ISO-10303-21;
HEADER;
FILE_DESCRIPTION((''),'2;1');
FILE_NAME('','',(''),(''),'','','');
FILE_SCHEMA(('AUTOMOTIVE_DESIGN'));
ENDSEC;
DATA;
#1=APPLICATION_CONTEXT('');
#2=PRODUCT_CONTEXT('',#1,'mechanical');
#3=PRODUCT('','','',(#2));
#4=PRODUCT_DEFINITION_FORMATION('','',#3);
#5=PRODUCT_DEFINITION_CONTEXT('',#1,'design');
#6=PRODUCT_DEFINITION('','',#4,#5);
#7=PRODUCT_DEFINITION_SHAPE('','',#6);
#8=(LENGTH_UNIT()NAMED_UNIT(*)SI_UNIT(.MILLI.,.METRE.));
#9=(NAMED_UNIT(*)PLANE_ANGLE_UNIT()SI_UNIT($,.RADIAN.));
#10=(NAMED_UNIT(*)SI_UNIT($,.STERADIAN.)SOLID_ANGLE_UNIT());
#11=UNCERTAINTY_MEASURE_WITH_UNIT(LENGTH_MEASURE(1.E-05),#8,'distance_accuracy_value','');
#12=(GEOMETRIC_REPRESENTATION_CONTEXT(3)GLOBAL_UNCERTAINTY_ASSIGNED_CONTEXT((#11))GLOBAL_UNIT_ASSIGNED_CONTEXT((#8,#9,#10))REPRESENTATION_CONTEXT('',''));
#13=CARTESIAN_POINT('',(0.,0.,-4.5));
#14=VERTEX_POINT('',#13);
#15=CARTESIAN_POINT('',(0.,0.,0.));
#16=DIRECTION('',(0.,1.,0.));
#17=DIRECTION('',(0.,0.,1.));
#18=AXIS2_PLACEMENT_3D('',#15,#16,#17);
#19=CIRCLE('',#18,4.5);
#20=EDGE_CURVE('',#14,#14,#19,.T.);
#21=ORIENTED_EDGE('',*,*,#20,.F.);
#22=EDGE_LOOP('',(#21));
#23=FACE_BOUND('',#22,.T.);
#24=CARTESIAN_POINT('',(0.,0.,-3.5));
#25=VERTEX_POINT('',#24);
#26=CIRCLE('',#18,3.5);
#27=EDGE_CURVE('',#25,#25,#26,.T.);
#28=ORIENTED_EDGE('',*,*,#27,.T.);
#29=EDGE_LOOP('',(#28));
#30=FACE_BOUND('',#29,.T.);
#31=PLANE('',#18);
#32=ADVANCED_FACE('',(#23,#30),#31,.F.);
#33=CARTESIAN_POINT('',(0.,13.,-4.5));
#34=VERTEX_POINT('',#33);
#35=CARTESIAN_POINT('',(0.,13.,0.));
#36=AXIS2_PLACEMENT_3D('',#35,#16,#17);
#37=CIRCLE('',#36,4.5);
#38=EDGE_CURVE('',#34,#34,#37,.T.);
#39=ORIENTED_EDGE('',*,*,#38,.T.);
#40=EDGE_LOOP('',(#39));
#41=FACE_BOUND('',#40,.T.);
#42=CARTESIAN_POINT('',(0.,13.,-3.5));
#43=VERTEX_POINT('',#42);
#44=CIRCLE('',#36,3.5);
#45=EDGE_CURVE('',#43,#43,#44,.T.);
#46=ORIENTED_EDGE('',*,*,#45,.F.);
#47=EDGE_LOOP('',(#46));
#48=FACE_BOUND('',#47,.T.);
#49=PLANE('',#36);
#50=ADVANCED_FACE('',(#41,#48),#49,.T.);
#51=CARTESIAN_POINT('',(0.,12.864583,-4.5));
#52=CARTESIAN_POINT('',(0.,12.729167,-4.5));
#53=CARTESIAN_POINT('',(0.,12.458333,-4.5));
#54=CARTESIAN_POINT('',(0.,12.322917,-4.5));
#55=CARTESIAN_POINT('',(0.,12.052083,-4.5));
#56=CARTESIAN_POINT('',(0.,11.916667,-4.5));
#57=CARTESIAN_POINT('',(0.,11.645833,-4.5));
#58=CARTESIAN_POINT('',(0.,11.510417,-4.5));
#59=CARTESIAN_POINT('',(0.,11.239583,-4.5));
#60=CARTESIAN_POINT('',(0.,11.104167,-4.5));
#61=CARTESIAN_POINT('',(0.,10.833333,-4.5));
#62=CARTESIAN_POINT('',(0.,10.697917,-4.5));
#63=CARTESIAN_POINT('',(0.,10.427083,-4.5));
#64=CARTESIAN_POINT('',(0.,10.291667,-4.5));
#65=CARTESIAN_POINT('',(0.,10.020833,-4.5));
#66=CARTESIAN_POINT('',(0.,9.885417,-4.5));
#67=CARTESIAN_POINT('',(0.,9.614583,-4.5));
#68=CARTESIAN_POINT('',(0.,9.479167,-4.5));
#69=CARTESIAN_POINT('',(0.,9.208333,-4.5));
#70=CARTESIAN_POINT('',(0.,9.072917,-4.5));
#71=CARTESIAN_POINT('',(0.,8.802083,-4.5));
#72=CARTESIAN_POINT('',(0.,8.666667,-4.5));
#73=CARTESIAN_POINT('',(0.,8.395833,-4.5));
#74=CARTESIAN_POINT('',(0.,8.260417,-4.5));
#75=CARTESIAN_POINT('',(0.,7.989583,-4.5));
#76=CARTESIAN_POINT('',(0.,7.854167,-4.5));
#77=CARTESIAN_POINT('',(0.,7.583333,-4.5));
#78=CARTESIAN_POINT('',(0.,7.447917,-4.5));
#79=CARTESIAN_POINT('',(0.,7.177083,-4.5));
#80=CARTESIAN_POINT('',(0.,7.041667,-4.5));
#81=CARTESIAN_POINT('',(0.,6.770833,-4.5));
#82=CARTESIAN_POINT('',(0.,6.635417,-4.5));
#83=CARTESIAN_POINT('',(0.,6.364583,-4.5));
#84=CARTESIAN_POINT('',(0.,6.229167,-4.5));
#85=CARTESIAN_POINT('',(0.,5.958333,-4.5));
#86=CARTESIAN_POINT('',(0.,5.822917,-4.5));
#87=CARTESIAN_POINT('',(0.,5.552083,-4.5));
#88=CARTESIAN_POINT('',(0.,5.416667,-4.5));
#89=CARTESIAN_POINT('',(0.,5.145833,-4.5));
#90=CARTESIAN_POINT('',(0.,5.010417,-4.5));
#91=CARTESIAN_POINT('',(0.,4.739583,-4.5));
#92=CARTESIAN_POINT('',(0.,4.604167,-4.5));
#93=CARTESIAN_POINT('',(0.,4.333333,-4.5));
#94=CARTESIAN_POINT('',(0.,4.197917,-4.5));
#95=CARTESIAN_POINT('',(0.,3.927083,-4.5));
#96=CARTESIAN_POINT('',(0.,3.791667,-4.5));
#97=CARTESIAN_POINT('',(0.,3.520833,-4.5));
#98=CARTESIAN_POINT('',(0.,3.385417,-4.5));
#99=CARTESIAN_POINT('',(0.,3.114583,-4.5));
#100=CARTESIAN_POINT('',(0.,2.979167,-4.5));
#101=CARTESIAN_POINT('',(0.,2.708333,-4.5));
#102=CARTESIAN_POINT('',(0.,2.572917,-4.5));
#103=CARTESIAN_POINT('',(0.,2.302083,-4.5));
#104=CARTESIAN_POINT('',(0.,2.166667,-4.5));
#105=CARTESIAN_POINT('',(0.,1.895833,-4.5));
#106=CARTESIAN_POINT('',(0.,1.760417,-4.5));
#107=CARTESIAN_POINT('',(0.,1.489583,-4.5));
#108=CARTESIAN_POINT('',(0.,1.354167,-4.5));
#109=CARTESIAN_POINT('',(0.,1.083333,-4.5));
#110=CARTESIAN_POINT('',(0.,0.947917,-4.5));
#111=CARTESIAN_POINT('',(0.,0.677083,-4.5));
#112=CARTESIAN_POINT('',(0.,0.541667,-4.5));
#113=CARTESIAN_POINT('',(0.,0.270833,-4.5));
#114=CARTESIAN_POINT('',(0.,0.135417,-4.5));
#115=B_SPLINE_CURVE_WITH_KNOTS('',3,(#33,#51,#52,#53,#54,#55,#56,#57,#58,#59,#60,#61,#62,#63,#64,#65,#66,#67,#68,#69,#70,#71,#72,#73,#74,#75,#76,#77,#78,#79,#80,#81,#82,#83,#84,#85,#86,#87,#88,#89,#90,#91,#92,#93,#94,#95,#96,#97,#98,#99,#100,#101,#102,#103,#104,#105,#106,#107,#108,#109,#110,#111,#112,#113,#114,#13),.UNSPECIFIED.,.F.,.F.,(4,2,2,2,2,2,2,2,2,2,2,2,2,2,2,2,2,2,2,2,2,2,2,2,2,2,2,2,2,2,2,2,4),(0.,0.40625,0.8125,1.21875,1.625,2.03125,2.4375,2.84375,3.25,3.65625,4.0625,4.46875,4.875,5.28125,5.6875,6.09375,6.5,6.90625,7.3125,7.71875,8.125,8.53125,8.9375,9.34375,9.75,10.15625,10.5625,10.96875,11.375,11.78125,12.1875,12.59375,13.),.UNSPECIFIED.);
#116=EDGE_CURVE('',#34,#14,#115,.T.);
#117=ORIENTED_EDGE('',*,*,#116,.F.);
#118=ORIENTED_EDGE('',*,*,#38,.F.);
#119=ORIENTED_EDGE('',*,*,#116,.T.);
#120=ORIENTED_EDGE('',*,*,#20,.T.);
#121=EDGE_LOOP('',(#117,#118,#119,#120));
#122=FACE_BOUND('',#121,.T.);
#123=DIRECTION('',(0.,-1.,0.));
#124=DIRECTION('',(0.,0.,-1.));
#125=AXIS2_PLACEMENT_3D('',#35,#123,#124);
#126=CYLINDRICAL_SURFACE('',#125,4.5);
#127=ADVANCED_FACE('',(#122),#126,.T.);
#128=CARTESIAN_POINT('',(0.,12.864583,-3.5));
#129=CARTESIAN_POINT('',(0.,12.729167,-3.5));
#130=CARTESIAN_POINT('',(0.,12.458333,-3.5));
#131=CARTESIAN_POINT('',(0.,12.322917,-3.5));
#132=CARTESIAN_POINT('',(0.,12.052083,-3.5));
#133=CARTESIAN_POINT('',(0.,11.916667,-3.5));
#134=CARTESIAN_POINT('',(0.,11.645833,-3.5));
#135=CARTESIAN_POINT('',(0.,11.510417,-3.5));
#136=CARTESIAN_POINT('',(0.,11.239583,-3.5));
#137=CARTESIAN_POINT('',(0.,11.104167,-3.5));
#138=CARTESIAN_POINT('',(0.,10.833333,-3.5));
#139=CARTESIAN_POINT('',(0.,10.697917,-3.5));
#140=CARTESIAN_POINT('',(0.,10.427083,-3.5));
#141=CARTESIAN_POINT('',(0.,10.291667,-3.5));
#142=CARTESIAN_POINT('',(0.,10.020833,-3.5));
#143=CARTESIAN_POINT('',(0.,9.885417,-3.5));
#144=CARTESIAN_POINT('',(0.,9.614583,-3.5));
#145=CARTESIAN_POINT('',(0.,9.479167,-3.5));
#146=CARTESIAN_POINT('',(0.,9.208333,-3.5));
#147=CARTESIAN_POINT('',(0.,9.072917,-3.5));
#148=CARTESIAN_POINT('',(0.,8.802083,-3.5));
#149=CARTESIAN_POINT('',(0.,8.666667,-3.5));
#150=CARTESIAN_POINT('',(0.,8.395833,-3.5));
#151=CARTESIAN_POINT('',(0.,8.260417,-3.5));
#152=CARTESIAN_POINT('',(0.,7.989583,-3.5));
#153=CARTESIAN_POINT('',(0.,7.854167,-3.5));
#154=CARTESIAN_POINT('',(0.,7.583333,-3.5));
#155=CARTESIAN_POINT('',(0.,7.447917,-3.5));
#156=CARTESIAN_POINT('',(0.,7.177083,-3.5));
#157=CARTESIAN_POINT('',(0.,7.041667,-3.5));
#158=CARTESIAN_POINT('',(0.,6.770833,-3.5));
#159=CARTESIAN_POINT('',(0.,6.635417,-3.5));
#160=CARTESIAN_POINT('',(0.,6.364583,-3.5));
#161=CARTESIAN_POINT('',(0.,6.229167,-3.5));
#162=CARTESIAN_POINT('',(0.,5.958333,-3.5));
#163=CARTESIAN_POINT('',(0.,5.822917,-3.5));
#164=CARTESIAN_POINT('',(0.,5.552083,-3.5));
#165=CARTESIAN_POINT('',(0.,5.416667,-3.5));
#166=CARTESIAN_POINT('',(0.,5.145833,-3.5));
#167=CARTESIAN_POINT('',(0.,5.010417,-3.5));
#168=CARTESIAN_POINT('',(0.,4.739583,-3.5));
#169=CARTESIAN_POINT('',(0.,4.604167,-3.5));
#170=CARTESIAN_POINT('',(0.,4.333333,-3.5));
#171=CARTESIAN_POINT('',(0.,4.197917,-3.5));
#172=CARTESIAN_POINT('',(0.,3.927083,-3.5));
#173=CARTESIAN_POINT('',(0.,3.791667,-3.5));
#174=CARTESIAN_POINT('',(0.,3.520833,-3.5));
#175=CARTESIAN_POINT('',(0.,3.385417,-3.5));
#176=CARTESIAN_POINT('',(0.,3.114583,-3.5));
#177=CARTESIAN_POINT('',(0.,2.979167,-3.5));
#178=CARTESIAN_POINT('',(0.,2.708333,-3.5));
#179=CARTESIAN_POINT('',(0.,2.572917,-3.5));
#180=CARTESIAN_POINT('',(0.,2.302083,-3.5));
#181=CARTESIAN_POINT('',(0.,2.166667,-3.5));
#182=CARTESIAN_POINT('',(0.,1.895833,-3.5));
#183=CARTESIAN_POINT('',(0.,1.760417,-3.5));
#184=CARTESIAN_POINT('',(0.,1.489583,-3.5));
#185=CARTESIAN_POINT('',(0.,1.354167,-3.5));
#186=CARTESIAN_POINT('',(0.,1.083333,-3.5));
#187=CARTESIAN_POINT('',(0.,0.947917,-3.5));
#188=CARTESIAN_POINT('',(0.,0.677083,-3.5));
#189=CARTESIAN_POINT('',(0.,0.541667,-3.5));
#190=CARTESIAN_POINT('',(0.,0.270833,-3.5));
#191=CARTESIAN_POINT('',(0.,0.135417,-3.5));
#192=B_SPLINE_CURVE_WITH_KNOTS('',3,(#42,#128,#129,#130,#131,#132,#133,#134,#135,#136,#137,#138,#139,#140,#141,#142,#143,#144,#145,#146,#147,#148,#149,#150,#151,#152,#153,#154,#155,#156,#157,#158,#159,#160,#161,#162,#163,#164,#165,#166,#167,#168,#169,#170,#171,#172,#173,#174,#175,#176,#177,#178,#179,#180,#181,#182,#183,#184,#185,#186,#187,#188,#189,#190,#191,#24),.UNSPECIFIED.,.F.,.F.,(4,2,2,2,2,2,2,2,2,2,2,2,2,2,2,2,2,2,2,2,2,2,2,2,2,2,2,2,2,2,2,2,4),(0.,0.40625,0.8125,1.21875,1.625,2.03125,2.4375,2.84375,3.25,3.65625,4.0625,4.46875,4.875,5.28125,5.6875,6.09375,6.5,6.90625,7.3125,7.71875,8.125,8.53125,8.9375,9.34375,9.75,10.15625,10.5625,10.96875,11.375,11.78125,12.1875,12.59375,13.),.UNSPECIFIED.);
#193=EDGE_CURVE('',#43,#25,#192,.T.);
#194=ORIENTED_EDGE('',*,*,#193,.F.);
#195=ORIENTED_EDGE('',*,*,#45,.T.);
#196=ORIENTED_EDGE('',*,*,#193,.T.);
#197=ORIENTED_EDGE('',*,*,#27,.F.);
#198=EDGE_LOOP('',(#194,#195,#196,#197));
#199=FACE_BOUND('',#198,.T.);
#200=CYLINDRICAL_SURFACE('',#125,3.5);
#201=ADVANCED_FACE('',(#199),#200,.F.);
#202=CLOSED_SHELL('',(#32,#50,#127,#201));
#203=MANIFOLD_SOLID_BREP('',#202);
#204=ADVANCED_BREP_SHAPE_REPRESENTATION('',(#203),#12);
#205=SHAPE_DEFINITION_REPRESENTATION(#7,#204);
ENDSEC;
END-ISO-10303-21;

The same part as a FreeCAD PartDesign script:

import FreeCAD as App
import Part
import Sketcher
from FreeCAD import Vector

doc = App.newDocument("Part")
body = doc.addObject("PartDesign::Body", "Body")

sketch1 = body.newObject("Sketcher::SketchObject", "Sketch")
sketch1.AttachmentSupport = (doc.getObject("XZ_Plane"), [""])
sketch1.MapMode = "FlatFace"
sketch1.addGeometry([
    Part.Circle(Vector(0, 0, 0), Vector(0, 0, 1), 4.5),
    Part.Circle(Vector(0, 0, 0), Vector(0, 0, 1), 3.5),
], False)
sketch1.addConstraint([
    Sketcher.Constraint("Coincident", 0, 3, -1, 1),
    Sketcher.Constraint("Coincident", 1, 3, -1, 1),
    Sketcher.Constraint("Diameter", 0, 9.0),
    Sketcher.Constraint("Diameter", 1, 7.0),
])
pad1 = body.newObject("PartDesign::Pad", "Pad")
pad1.Profile = sketch1
pad1.Length = 13
pad1.Reversed = True

doc.recompute()
